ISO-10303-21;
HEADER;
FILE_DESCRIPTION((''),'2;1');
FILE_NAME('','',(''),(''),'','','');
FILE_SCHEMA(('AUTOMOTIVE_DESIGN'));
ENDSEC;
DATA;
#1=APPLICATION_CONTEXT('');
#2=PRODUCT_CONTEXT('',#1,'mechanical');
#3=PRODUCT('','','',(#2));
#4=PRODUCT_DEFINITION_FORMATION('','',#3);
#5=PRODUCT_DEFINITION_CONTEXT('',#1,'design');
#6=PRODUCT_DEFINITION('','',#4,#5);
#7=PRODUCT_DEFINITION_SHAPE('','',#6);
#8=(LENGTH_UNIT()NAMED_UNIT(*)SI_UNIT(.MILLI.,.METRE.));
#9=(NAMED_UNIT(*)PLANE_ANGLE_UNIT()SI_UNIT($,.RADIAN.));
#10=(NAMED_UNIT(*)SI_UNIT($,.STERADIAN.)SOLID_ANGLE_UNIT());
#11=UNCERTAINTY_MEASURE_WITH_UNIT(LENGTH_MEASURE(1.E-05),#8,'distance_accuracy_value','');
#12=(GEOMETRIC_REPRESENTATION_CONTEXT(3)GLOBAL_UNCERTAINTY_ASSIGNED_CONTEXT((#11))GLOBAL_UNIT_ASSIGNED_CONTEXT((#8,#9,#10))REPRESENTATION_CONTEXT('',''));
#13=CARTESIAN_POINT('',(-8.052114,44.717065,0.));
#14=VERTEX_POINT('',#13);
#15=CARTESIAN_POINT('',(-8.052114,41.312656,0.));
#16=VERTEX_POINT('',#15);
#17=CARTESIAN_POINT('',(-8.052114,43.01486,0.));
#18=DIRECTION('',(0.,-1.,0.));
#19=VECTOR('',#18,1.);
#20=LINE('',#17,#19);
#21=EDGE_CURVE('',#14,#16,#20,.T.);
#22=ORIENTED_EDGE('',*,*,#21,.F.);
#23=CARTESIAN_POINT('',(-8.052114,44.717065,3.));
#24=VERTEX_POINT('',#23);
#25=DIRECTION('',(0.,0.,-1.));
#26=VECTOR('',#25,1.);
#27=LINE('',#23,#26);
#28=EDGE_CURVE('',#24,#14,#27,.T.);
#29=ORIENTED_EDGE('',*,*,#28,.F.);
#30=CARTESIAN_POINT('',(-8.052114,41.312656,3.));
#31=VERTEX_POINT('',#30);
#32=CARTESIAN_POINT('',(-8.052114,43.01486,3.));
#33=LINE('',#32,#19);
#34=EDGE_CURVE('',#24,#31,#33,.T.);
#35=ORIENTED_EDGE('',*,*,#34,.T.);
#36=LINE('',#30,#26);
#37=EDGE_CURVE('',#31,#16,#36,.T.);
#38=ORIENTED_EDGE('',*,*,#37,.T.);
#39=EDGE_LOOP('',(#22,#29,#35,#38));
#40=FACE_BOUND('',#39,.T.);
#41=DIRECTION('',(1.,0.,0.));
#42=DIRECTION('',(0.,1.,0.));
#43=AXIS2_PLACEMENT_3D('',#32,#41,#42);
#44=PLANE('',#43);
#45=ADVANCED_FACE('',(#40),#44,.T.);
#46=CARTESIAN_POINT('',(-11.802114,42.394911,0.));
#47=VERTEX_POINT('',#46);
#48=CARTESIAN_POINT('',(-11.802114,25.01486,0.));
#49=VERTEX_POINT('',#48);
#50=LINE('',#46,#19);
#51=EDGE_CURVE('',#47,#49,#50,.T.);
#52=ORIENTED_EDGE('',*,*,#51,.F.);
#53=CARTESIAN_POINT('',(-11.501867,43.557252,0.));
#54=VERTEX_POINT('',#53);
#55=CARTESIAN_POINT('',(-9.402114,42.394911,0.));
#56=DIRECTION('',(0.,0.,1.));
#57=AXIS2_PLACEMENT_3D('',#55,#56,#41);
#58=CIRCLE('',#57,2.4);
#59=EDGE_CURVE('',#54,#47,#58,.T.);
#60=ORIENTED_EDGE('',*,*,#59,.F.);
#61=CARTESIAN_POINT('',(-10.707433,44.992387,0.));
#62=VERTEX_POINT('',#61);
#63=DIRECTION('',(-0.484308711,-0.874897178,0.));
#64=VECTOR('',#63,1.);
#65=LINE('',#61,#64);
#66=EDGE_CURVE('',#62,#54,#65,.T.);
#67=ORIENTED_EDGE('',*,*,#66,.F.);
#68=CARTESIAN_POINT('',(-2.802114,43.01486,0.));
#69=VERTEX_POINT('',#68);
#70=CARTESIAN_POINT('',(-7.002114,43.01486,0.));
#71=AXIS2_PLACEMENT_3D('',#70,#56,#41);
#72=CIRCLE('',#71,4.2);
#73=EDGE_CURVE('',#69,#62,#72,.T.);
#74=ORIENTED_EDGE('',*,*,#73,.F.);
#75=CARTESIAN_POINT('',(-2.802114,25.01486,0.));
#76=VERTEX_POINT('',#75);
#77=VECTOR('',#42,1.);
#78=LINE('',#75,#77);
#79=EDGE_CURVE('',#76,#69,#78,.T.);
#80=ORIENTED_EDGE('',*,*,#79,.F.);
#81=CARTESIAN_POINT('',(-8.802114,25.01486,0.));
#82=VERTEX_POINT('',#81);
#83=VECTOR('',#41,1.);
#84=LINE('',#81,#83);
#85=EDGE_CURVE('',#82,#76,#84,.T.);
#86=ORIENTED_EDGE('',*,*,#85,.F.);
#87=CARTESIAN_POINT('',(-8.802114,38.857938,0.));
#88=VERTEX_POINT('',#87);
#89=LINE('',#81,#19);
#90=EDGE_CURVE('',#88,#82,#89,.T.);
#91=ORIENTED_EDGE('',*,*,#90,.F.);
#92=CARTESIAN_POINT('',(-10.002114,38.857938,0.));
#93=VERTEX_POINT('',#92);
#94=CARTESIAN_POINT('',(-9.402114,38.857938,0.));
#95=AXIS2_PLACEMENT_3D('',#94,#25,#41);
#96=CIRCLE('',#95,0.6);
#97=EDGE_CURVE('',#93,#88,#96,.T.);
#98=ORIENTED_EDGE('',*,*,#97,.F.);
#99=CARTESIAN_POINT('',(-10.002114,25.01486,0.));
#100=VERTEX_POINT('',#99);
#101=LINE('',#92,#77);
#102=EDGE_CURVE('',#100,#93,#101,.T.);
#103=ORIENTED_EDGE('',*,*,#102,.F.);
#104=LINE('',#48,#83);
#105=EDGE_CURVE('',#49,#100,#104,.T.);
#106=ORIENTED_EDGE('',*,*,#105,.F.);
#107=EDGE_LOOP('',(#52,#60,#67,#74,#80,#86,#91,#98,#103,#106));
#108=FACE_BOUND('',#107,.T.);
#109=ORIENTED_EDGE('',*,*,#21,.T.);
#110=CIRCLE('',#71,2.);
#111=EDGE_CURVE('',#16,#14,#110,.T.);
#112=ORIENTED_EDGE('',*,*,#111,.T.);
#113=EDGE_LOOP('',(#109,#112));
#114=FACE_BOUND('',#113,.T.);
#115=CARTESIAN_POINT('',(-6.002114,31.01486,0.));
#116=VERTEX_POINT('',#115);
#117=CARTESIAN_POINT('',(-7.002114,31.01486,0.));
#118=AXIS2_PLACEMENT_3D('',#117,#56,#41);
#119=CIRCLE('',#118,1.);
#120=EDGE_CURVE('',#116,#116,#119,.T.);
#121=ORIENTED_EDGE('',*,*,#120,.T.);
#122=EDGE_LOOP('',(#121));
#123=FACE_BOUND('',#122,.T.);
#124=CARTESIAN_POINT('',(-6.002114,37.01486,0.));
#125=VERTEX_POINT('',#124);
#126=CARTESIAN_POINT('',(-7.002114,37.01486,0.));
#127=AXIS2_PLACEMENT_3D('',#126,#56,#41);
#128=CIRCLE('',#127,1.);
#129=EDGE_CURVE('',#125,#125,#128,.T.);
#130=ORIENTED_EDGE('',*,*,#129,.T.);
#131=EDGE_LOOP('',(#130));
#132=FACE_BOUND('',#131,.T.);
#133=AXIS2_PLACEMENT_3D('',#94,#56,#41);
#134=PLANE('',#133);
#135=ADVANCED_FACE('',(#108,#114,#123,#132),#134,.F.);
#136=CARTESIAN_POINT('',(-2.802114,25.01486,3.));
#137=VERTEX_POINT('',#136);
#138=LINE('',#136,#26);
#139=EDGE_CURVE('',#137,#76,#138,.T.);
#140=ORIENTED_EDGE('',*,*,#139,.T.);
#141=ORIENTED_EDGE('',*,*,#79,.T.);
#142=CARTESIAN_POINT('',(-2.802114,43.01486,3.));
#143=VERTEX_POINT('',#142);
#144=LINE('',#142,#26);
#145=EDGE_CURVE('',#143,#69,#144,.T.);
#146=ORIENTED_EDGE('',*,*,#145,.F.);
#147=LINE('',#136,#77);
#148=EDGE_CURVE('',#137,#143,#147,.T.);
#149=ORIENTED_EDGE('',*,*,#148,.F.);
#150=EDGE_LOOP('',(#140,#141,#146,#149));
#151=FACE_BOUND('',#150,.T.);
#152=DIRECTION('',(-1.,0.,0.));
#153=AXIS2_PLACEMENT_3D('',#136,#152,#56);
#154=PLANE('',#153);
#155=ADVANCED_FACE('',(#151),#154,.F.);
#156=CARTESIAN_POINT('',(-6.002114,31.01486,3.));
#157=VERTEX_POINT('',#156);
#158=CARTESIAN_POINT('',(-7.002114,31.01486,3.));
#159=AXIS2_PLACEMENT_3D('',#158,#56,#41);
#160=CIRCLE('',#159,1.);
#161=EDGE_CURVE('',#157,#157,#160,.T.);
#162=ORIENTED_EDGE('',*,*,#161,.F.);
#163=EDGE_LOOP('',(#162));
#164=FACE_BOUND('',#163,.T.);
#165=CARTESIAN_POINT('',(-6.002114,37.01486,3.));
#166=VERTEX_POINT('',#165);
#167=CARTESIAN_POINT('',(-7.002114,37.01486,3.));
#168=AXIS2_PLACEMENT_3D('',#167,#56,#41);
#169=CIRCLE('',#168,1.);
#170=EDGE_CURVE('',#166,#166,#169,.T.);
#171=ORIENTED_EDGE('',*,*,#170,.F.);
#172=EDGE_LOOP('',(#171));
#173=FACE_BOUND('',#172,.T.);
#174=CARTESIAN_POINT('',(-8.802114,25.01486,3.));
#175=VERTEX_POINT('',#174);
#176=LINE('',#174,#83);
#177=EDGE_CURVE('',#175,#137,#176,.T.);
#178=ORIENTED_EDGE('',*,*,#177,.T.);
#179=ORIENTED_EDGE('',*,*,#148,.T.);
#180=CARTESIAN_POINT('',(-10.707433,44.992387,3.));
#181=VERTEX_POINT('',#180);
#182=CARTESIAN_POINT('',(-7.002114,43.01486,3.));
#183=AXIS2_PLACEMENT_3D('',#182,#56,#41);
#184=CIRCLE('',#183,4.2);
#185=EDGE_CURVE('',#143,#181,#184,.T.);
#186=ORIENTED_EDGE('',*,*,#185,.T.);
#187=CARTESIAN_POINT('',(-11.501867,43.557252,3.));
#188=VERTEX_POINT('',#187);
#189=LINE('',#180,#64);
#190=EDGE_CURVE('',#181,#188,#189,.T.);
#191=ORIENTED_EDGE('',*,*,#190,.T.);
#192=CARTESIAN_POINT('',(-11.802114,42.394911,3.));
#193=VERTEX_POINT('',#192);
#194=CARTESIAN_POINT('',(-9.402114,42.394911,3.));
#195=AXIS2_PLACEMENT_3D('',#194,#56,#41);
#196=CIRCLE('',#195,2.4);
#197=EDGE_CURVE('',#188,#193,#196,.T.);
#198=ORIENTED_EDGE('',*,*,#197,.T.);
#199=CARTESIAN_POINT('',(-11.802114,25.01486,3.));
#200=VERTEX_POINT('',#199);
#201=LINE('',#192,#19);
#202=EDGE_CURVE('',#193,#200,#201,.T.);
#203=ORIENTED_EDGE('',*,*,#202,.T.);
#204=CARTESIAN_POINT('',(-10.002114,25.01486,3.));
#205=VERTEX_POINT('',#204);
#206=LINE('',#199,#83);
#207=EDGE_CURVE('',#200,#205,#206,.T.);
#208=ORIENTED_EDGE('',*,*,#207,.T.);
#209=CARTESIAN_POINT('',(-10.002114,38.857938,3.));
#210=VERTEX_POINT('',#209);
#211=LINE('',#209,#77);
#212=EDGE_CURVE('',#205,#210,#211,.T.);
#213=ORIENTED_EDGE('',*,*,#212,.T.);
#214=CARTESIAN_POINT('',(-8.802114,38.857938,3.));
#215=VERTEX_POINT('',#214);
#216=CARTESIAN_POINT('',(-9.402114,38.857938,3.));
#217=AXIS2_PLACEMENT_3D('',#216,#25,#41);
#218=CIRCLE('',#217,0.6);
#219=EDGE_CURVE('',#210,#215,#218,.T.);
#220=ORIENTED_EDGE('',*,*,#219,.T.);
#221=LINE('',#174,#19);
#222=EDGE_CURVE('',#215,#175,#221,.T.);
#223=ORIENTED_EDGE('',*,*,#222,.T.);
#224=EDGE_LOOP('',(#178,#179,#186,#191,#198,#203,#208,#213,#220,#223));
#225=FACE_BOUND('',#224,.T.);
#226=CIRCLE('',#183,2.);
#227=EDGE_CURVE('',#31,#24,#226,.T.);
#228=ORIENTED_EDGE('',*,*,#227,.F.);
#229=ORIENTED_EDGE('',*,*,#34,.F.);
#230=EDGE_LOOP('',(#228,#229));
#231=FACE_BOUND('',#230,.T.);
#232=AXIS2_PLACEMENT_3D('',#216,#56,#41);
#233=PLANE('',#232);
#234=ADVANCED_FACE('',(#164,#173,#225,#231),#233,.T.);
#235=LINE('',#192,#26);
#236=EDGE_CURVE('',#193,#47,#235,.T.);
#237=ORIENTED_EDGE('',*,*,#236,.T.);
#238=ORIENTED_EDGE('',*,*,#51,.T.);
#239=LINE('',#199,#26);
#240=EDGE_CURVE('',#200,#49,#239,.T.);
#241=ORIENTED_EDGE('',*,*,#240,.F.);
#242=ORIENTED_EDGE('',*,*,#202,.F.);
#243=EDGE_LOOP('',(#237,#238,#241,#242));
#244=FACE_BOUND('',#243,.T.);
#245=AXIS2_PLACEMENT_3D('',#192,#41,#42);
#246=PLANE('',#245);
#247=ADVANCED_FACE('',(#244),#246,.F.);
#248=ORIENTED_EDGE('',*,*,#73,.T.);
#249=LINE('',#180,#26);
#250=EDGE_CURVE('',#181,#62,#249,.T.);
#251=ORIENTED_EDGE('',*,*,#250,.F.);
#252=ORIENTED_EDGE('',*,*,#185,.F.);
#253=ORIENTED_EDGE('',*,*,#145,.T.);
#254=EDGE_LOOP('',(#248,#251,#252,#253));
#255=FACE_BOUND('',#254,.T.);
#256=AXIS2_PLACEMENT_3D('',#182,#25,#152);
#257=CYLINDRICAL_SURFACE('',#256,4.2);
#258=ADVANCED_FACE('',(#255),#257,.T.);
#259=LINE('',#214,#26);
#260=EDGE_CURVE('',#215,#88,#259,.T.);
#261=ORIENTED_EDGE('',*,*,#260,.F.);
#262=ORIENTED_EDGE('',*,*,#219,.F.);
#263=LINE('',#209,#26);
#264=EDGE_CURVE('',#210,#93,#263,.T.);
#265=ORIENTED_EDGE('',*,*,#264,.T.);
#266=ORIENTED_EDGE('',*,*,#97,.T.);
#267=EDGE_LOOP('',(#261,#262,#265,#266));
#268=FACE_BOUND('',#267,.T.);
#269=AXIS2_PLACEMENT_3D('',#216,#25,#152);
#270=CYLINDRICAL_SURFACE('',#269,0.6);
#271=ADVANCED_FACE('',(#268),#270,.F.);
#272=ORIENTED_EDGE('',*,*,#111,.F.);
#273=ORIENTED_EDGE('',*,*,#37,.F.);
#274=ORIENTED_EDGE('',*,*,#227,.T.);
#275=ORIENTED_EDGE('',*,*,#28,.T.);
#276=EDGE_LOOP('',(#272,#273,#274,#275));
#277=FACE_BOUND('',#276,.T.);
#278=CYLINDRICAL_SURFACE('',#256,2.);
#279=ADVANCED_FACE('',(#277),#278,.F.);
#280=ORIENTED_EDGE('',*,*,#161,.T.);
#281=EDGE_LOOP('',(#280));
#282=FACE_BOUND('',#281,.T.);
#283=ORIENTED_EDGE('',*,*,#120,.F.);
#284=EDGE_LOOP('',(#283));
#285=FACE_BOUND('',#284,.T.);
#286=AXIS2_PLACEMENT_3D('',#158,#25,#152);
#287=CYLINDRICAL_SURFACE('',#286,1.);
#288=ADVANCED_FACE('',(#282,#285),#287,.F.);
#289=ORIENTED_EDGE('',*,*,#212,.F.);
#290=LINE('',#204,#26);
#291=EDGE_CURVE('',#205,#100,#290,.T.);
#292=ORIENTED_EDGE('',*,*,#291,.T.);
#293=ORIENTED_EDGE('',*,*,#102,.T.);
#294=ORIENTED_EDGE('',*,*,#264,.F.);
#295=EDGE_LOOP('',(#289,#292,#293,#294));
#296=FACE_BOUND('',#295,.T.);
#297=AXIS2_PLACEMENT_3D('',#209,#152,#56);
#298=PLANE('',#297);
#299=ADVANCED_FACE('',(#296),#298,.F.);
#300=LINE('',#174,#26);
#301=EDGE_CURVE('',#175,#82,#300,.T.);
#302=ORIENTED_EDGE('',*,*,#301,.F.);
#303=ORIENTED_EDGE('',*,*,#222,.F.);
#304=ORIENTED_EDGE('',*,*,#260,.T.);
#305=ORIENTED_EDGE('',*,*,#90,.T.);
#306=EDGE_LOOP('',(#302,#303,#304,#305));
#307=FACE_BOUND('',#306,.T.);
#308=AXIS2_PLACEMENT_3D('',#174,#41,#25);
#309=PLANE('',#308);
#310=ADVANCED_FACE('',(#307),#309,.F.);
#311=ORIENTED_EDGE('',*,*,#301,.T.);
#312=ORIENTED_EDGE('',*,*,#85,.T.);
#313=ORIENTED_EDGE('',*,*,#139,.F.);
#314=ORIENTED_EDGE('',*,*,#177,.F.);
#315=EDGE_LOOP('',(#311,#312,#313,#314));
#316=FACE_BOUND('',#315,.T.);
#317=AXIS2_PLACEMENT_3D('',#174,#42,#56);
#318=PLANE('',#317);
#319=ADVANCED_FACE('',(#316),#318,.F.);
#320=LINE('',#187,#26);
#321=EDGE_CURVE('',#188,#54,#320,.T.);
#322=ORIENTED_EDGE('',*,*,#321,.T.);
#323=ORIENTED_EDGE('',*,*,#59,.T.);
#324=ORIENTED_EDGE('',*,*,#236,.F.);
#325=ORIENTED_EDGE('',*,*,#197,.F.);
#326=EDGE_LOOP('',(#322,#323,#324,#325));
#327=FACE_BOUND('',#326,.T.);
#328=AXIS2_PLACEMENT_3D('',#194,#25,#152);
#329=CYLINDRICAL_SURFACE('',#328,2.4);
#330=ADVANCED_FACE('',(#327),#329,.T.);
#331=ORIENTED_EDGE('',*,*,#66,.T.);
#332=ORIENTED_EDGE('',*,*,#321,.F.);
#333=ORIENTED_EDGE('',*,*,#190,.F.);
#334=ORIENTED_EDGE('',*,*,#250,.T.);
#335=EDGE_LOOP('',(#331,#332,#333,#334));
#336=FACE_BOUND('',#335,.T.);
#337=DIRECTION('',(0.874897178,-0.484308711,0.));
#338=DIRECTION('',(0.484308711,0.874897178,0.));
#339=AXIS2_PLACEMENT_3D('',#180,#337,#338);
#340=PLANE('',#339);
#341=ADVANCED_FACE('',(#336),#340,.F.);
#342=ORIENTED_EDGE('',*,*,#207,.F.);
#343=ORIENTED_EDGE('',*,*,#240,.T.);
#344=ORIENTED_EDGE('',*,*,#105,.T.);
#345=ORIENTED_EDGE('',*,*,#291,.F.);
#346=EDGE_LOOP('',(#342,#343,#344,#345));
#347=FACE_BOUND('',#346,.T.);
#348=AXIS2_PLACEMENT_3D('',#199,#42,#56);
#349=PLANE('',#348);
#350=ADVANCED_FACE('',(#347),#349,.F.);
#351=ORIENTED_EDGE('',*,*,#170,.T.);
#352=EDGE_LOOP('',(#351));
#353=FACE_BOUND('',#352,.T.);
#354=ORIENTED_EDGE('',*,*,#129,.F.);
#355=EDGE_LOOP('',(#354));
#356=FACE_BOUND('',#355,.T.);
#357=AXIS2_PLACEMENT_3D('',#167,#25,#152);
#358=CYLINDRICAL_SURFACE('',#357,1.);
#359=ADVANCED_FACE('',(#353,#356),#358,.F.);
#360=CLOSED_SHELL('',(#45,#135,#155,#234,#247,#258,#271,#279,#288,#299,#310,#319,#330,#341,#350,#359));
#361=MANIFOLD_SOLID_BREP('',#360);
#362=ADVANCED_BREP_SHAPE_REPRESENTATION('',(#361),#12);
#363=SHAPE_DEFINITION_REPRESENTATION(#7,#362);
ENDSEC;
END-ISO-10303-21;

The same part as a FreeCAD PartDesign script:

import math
import FreeCAD as App
import Part
import Sketcher
from FreeCAD import Vector

doc = App.newDocument("Part")
body = doc.addObject("PartDesign::Body", "Body")

sketch1 = body.newObject("Sketcher::SketchObject", "Sketch")
sketch1.AttachmentSupport = (doc.getObject("XY_Plane"), [""])
sketch1.MapMode = "FlatFace"
sketch1.addGeometry([
    Part.LineSegment(Vector(-8.8, 38.9, 0), Vector(-8.8, 25, 0)),
    Part.LineSegment(Vector(-8.8, 25, 0), Vector(-2.8, 25, 0)),
    Part.LineSegment(Vector(-2.8, 25, 0), Vector(-2.8, 43, 0)),
    Part.ArcOfCircle(Part.Circle(Vector(-7, 43, 0), Vector(0, 0, 1), 4.2), math.radians(0), math.radians(152)),
    Part.LineSegment(Vector(-10.7, 45, 0), Vector(-11.5, 43.6, 0)),
    Part.ArcOfCircle(Part.Circle(Vector(-9.4, 42.4, 0), Vector(0, 0, 1), 2.4), math.radians(151), math.radians(180)),
    Part.LineSegment(Vector(-11.8, 42.4, 0), Vector(-11.8, 25, 0)),
    Part.LineSegment(Vector(-11.8, 25, 0), Vector(-10, 25, 0)),
    Part.LineSegment(Vector(-10, 25, 0), Vector(-10, 38.9, 0)),
    Part.ArcOfCircle(Part.Circle(Vector(-9.4, 38.9, 0), Vector(0, 0, 1), 0.6), math.radians(0), math.radians(180)),
    Part.Circle(Vector(-7, 31, 0), Vector(0, 0, 1), 1),
    Part.Circle(Vector(-7, 37, 0), Vector(0, 0, 1), 1),
    Part.LineSegment(Vector(-8.1, 41.3, 0), Vector(-8.1, 44.7, 0)),
    Part.ArcOfCircle(Part.Circle(Vector(-7, 43, 0), Vector(0, 0, 1), 2), math.radians(-122), math.radians(122)),
], False)
sketch1.addConstraint([
    Sketcher.Constraint("Coincident", 0, 2, 1, 1),
    Sketcher.Constraint("Coincident", 1, 2, 2, 1),
    Sketcher.Constraint("Tangent", 2, 2, 3, 1),
    Sketcher.Constraint("Coincident", 3, 2, 4, 1),
    Sketcher.Constraint("Tangent", 4, 2, 5, 1),
    Sketcher.Constraint("Tangent", 5, 2, 6, 1),
    Sketcher.Constraint("Coincident", 6, 2, 7, 1),
    Sketcher.Constraint("Coincident", 7, 2, 8, 1),
    Sketcher.Constraint("Tangent", 8, 2, 9, 2),
    Sketcher.Constraint("Tangent", 9, 1, 0, 1),
    Sketcher.Constraint("Coincident", 12, 1, 13, 1),
    Sketcher.Constraint("Coincident", 13, 2, 12, 2),
    Sketcher.Constraint("Vertical", 0),
    Sketcher.Constraint("Horizontal", 1),
    Sketcher.Constraint("Vertical", 2),
    Sketcher.Constraint("Vertical", 6),
    Sketcher.Constraint("Horizontal", 7),
    Sketcher.Constraint("Vertical", 8),
    Sketcher.Constraint("Vertical", 12),
    Sketcher.Constraint("Coincident", 13, 3, 3, 3),
    Sketcher.Constraint("Equal", 10, 11),
    Sketcher.Constraint("Horizontal", 1, 2, 6, 2),
    Sketcher.Constraint("Vertical", 5, 3, 9, 3),
    Sketcher.Constraint("Vertical", 3, 3, 10, 3),
    Sketcher.Constraint("Vertical", 10, 3, 11, 3),
    Sketcher.Constraint("Diameter", 10, 2.0),
    Sketcher.Constraint("Radius", 13, 2.0),
    Sketcher.Constraint("Radius", 3, 4.2),
    Sketcher.Constraint("Radius", 5, 2.4),
    Sketcher.Constraint("Radius", 9, 0.6),
    Sketcher.Constraint("DistanceX", 1, 1, 1, 2, 6.0),
    Sketcher.Constraint("DistanceY", 2, 1, 2, 2, 18.0),
    Sketcher.Constraint("DistanceY", 10, 3, 3, 3, 12.0),
    Sketcher.Constraint("DistanceY", 11, 3, 3, 3, 6.0),
    Sketcher.Constraint("DistanceX", 5, 3, 12, 1, 1.35),
    Sketcher.Constraint("DistanceY", 0, 2, 0, 1, 13.843078),
    Sketcher.Constraint("DistanceY", 6, 2, 6, 1, 17.380051),
    Sketcher.Constraint("DistanceY", -1, 1, 3, 3, 43.01486),
    Sketcher.Constraint("DistanceX", 3, 2, 5, 3, 1.305319),
    Sketcher.Constraint("DistanceX", 3, 3, -1, 1, 7.002114),
])
pad1 = body.newObject("PartDesign::Pad", "Pad")
pad1.Profile = sketch1
pad1.Length = 3

doc.recompute()
